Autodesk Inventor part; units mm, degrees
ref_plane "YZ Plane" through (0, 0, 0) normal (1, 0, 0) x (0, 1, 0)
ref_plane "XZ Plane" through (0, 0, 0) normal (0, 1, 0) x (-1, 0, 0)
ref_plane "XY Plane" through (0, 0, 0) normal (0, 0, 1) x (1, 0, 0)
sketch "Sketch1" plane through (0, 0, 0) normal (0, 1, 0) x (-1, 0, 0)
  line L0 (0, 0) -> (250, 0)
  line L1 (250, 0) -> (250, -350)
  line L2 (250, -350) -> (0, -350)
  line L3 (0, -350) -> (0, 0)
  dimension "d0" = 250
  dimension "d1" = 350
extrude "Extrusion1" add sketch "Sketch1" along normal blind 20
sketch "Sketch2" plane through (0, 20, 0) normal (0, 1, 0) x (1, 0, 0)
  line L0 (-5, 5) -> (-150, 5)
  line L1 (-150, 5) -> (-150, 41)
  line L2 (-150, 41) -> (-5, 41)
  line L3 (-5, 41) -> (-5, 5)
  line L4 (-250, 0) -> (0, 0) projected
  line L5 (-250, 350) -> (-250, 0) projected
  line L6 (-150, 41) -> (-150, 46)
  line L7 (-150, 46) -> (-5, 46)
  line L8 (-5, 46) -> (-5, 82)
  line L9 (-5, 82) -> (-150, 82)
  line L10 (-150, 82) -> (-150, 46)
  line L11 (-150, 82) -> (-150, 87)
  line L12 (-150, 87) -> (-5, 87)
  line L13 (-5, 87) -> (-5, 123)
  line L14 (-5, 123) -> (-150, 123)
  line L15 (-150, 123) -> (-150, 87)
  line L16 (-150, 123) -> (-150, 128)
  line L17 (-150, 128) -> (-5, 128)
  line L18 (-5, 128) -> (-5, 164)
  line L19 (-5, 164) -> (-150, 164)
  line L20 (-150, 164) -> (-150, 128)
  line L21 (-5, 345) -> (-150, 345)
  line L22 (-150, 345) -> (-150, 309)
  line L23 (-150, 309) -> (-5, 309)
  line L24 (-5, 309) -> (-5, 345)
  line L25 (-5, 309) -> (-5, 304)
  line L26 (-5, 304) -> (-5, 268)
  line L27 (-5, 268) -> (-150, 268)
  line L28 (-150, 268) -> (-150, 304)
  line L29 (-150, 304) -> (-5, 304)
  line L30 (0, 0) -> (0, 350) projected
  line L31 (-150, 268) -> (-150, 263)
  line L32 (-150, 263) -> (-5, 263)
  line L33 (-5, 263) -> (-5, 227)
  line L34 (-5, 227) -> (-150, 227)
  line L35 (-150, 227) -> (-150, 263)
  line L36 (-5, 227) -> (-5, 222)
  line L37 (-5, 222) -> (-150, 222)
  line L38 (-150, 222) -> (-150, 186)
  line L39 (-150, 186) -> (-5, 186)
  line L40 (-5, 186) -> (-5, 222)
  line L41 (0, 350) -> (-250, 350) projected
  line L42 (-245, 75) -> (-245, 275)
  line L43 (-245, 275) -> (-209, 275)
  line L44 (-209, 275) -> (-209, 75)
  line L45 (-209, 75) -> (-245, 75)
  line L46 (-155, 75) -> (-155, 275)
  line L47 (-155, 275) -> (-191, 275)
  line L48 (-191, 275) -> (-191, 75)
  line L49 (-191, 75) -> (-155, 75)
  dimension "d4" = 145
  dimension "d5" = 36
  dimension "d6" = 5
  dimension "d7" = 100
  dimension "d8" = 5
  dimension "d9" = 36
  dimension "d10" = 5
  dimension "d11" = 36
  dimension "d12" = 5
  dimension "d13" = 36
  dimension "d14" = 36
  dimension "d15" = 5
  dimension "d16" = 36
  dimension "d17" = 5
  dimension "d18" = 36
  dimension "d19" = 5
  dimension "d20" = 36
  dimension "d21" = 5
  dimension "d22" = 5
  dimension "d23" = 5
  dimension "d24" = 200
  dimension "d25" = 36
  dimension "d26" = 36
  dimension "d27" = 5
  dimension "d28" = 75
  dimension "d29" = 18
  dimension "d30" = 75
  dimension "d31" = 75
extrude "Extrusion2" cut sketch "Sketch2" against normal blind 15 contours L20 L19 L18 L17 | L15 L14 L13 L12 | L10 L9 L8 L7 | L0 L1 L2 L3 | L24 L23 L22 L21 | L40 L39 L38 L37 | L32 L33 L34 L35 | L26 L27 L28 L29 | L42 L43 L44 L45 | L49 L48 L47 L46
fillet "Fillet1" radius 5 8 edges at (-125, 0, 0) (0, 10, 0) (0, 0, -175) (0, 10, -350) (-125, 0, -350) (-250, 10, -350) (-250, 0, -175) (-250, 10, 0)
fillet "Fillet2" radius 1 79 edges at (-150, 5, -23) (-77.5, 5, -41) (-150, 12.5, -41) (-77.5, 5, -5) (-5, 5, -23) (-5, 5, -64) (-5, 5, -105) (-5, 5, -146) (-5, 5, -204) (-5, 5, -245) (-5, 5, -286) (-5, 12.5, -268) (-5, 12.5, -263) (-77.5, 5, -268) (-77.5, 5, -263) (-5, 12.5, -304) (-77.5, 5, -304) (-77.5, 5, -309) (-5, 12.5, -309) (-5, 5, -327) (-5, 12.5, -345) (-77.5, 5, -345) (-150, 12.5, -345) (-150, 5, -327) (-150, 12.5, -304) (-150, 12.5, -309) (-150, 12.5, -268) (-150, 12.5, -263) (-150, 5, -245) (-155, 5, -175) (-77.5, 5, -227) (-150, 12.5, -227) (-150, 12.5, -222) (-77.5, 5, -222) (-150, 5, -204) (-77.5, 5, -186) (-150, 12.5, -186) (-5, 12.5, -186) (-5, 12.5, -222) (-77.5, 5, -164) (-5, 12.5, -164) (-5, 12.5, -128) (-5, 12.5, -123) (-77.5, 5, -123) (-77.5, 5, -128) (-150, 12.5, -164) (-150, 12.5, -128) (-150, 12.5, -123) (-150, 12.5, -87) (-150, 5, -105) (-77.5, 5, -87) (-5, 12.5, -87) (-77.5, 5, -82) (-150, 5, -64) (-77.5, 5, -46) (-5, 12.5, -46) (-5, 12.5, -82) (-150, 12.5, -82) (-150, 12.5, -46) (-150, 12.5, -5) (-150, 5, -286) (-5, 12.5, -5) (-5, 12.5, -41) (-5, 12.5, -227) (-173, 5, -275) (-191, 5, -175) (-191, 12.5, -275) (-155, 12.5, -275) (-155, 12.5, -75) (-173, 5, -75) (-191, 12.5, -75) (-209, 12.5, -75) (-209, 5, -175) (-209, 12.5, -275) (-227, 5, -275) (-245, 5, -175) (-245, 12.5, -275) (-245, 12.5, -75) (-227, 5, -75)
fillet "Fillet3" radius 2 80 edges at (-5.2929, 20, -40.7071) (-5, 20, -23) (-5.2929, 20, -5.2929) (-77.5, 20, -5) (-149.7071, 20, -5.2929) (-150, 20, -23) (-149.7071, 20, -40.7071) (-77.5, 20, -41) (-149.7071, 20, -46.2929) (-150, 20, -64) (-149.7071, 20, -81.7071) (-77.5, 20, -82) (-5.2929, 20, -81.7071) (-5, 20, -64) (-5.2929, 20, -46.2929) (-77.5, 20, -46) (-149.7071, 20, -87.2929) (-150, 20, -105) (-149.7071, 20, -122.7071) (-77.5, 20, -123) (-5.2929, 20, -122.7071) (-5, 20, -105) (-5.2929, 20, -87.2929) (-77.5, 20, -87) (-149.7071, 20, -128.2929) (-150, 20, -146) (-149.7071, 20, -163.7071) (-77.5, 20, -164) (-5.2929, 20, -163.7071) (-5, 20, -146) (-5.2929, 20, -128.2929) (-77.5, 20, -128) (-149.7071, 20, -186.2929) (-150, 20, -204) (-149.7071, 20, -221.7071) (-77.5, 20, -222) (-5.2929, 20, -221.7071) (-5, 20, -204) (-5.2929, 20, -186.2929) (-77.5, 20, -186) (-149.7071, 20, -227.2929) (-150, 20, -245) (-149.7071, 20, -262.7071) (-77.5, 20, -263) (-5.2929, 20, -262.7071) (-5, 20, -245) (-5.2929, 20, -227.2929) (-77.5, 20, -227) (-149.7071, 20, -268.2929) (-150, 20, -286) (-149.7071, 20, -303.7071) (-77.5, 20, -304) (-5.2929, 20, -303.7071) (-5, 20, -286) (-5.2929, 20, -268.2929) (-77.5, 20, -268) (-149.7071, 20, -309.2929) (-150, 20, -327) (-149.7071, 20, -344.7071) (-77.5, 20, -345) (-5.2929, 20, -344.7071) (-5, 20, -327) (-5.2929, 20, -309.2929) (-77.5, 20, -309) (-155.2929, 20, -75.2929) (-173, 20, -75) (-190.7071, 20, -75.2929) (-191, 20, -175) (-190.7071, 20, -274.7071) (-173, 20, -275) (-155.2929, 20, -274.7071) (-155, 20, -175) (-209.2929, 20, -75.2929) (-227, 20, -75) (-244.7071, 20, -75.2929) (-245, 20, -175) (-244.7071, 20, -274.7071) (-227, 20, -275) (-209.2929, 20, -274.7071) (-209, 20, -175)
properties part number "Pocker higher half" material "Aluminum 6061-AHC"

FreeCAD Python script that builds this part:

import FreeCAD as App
import Part
import Sketcher
from FreeCAD import Vector


def edges_at(feature, points):
    """Names of the edges that pass closest to the given points."""
    edges = feature.Shape.Edges
    near = lambda p: min(range(len(edges)), key=lambda i: edges[i].distToShape(Part.Vertex(*p))[0])
    return sorted({f"Edge{near(p) + 1}" for p in points})


def add_polygon(sketch, points):
    """Adds a closed chain of lines whose ends are joined by coincident constraints."""
    first, n = sketch.GeometryCount, len(points)
    for a, b in zip(points, points[1:] + points[:1]):
        sketch.addGeometry(Part.LineSegment(App.Vector(*a, 0), App.Vector(*b, 0)), False)
    for i in range(n):
        sketch.addConstraint(Sketcher.Constraint("Coincident", first + i, 2, first + (i + 1) % n, 1))

doc = App.newDocument("Part")
body = doc.addObject("PartDesign::Body", "Body")

sketch1 = body.newObject("Sketcher::SketchObject", "Sketch")
sketch1.AttachmentSupport = (doc.getObject("XZ_Plane"), [""])
sketch1.MapMode = "FlatFace"
add_polygon(sketch1, [(-250, 0), (0, 0), (0, -350), (-250, -350)])
sketch1.addConstraint([
    Sketcher.Constraint("Horizontal", 0),
    Sketcher.Constraint("Vertical", 1),
    Sketcher.Constraint("Horizontal", 2),
    Sketcher.Constraint("Vertical", 3),
    Sketcher.Constraint("Coincident", 0, 2, -1, 1),
    Sketcher.Constraint("DistanceX", 0, 1, 0, 2, 250.0),
    Sketcher.Constraint("DistanceY", 1, 2, 1, 1, 350.0),
])
pad1 = body.newObject("PartDesign::Pad", "Pad")
pad1.Profile = sketch1
pad1.Length = 20
pad1.Reversed = True

sketch2 = body.newObject("Sketcher::SketchObject", "Sketch001")
sketch2.AttachmentSupport = (doc.getObject("XZ_Plane"), [""])
sketch2.MapMode = "FlatFace"
sketch2.AttachmentOffset = App.Placement(Vector(0, 0, -20), App.Rotation())
add_polygon(sketch2, [(-150, -164), (-150, -128), (-5, -128), (-5, -164)])
add_polygon(sketch2, [(-150, -123), (-150, -87), (-5, -87), (-5, -123)])
add_polygon(sketch2, [(-150, -82), (-150, -46), (-5, -46), (-5, -82)])
add_polygon(sketch2, [(-150, -5), (-5, -5), (-5, -41), (-150, -41)])
add_polygon(sketch2, [(-5, -309), (-5, -345), (-150, -345), (-150, -309)])
add_polygon(sketch2, [(-5, -186), (-5, -222), (-150, -222), (-150, -186)])
add_polygon(sketch2, [(-5, -263), (-150, -263), (-150, -227), (-5, -227)])
add_polygon(sketch2, [(-5, -268), (-5, -304), (-150, -304), (-150, -268)])
add_polygon(sketch2, [(-245, -275), (-245, -75), (-209, -75), (-209, -275)])
add_polygon(sketch2, [(-191, -75), (-155, -75), (-155, -275), (-191, -275)])
sketch2.addConstraint([
    Sketcher.Constraint("Vertical", 0),
    Sketcher.Constraint("Horizontal", 1),
    Sketcher.Constraint("Vertical", 2),
    Sketcher.Constraint("Horizontal", 3),
    Sketcher.Constraint("Vertical", 4),
    Sketcher.Constraint("Horizontal", 5),
    Sketcher.Constraint("Vertical", 6),
    Sketcher.Constraint("Horizontal", 7),
    Sketcher.Constraint("Vertical", 8),
    Sketcher.Constraint("Horizontal", 9),
    Sketcher.Constraint("Vertical", 10),
    Sketcher.Constraint("Horizontal", 11),
    Sketcher.Constraint("Horizontal", 12),
    Sketcher.Constraint("Vertical", 13),
    Sketcher.Constraint("Horizontal", 14),
    Sketcher.Constraint("Vertical", 15),
    Sketcher.Constraint("Vertical", 16),
    Sketcher.Constraint("Horizontal", 17),
    Sketcher.Constraint("Vertical", 18),
    Sketcher.Constraint("Horizontal", 19),
    Sketcher.Constraint("Vertical", 20),
    Sketcher.Constraint("Horizontal", 21),
    Sketcher.Constraint("Vertical", 22),
    Sketcher.Constraint("Horizontal", 23),
    Sketcher.Constraint("Horizontal", 24),
    Sketcher.Constraint("Vertical", 25),
    Sketcher.Constraint("Horizontal", 26),
    Sketcher.Constraint("Vertical", 27),
    Sketcher.Constraint("Vertical", 28),
    Sketcher.Constraint("Horizontal", 29),
    Sketcher.Constraint("Vertical", 30),
    Sketcher.Constraint("Horizontal", 31),
    Sketcher.Constraint("Vertical", 32),
    Sketcher.Constraint("Horizontal", 33),
    Sketcher.Constraint("Vertical", 34),
    Sketcher.Constraint("Horizontal", 35),
    Sketcher.Constraint("Horizontal", 36),
    Sketcher.Constraint("Vertical", 37),
    Sketcher.Constraint("Horizontal", 38),
    Sketcher.Constraint("Vertical", 39),
    Sketcher.Constraint("Horizontal", 33, 2, 36, 2),
    Sketcher.Constraint("Horizontal", 35, 2, 37, 2),
    Sketcher.Constraint("Vertical", 3, 2, 4, 2),
    Sketcher.Constraint("Vertical", 2, 2, 5, 2),
    Sketcher.Constraint("Vertical", 7, 2, 8, 2),
    Sketcher.Constraint("Vertical", 6, 2, 9, 2),
    Sketcher.Constraint("Vertical", 10, 2, 12, 2),
    Sketcher.Constraint("Vertical", 11, 2, 14, 2),
    Sketcher.Constraint("Vertical", 13, 2, 16, 2),
    Sketcher.Constraint("Vertical", 15, 2, 17, 2),
    Sketcher.Constraint("Vertical", 19, 2, 20, 2),
    Sketcher.Constraint("Vertical", 18, 2, 21, 2),
    Sketcher.Constraint("Vertical", 22, 2, 24, 2),
    Sketcher.Constraint("Vertical", 23, 2, 26, 2),
    Sketcher.Constraint("Vertical", 27, 2, 28, 2),
    Sketcher.Constraint("Vertical", 25, 2, 29, 2),
    Sketcher.Constraint("Equal", 35, 36),
    Sketcher.Constraint("Equal", 38, 0),
    Sketcher.Constraint("Equal", 2, 4),
    Sketcher.Constraint("Equal", 6, 8),
    Sketcher.Constraint("Equal", 10, 13),
    Sketcher.Constraint("Equal", 15, 16),
    Sketcher.Constraint("Equal", 18, 20),
    Sketcher.Constraint("Equal", 22, 25),
    Sketcher.Constraint("Equal", 27, 28),
    Sketcher.Constraint("DistanceX", 1, 1, 1, 2, 145.0),
    Sketcher.Constraint("DistanceX", 33, 1, 33, 2, 36.0),
    Sketcher.Constraint("DistanceY", 32, 1, 32, 2, 200.0),
    Sketcher.Constraint("DistanceX", 1, 2, -1, 1, 5.0),
    Sketcher.Constraint("DistanceY", 12, 2, -1, 1, 5.0),
    Sketcher.Constraint("DistanceY", 32, 2, -1, 1, 75.0),
    Sketcher.Constraint("DistanceY", 1, 2, 6, 2, 5.0),
    Sketcher.Constraint("DistanceY", 5, 2, 10, 2, 5.0),
    Sketcher.Constraint("DistanceY", 9, 2, 13, 2, 5.0),
    Sketcher.Constraint("DistanceY", 18, 2, 3, 2, 145.0),
    Sketcher.Constraint("DistanceY", 25, 2, 21, 2, 5.0),
    Sketcher.Constraint("DistanceY", 19, 2, 28, 2, 5.0),
    Sketcher.Constraint("DistanceY", 30, 2, 24, 2, 5.0),
    Sketcher.Constraint("DistanceX", 36, 2, 11, 2, 5.0),
    Sketcher.Constraint("DistanceX", 34, 2, 38, 2, 18.0),
])
pocket1 = body.newObject("PartDesign::Pocket", "Pocket")
pocket1.Profile = sketch2
pocket1.Length = 15
pocket1.Reversed = True
doc.recompute()

fillet = body.newObject("PartDesign::Fillet", "Fillet")
fillet.Base = (pocket1, edges_at(pocket1, [
    (-125, 0, 0),
    (0, 10, 0),
    (0, 0, -175),
    (0, 10, -350),
    (-125, 0, -350),
    (-250, 10, -350),
    (-250, 0, -175),
    (-250, 10, 0),
]))
fillet.Radius = 5
doc.recompute()

fillet2 = body.newObject("PartDesign::Fillet", "Fillet001")
fillet2.Base = (fillet, edges_at(fillet, [
    (-150, 5, -23),
    (-77.5, 5, -41),
    (-150, 12.5, -41),
    (-77.5, 5, -5),
    (-5, 5, -23),
    (-5, 5, -64),
    (-5, 5, -105),
    (-5, 5, -146),
    (-5, 5, -204),
    (-5, 5, -245),
    (-5, 5, -286),
    (-5, 12.5, -268),
    (-5, 12.5, -263),
    (-77.5, 5, -268),
    (-77.5, 5, -263),
    (-5, 12.5, -304),
    (-77.5, 5, -304),
    (-77.5, 5, -309),
    (-5, 12.5, -309),
    (-5, 5, -327),
    (-5, 12.5, -345),
    (-77.5, 5, -345),
    (-150, 12.5, -345),
    (-150, 5, -327),
    (-150, 12.5, -304),
    (-150, 12.5, -309),
    (-150, 12.5, -268),
    (-150, 12.5, -263),
    (-150, 5, -245),
    (-155, 5, -175),
    (-77.5, 5, -227),
    (-150, 12.5, -227),
    (-150, 12.5, -222),
    (-77.5, 5, -222),
    (-150, 5, -204),
    (-77.5, 5, -186),
    (-150, 12.5, -186),
    (-5, 12.5, -186),
    (-5, 12.5, -222),
    (-77.5, 5, -164),
    (-5, 12.5, -164),
    (-5, 12.5, -128),
    (-5, 12.5, -123),
    (-77.5, 5, -123),
    (-77.5, 5, -128),
    (-150, 12.5, -164),
    (-150, 12.5, -128),
    (-150, 12.5, -123),
    (-150, 12.5, -87),
    (-150, 5, -105),
    (-77.5, 5, -87),
    (-5, 12.5, -87),
    (-77.5, 5, -82),
    (-150, 5, -64),
    (-77.5, 5, -46),
    (-5, 12.5, -46),
    (-5, 12.5, -82),
    (-150, 12.5, -82),
    (-150, 12.5, -46),
    (-150, 12.5, -5),
    (-150, 5, -286),
    (-5, 12.5, -5),
    (-5, 12.5, -41),
    (-5, 12.5, -227),
    (-173, 5, -275),
    (-191, 5, -175),
    (-191, 12.5, -275),
    (-155, 12.5, -275),
    (-155, 12.5, -75),
    (-173, 5, -75),
    (-191, 12.5, -75),
    (-209, 12.5, -75),
    (-209, 5, -175),
    (-209, 12.5, -275),
    (-227, 5, -275),
    (-245, 5, -175),
    (-245, 12.5, -275),
    (-245, 12.5, -75),
    (-227, 5, -75),
]))
fillet2.Radius = 1
doc.recompute()

fillet3 = body.newObject("PartDesign::Fillet", "Fillet002")
fillet3.Base = (fillet2, edges_at(fillet2, [
    (-5.293, 20, -40.707),
    (-5, 20, -23),
    (-5.293, 20, -5.293),
    (-77.5, 20, -5),
    (-149.707, 20, -5.293),
    (-150, 20, -23),
    (-149.707, 20, -40.707),
    (-77.5, 20, -41),
    (-149.707, 20, -46.293),
    (-150, 20, -64),
    (-149.707, 20, -81.707),
    (-77.5, 20, -82),
    (-5.293, 20, -81.707),
    (-5, 20, -64),
    (-5.293, 20, -46.293),
    (-77.5, 20, -46),
    (-149.707, 20, -87.293),
    (-150, 20, -105),
    (-149.707, 20, -122.707),
    (-77.5, 20, -123),
    (-5.293, 20, -122.707),
    (-5, 20, -105),
    (-5.293, 20, -87.293),
    (-77.5, 20, -87),
    (-149.707, 20, -128.293),
    (-150, 20, -146),
    (-149.707, 20, -163.707),
    (-77.5, 20, -164),
    (-5.293, 20, -163.707),
    (-5, 20, -146),
    (-5.293, 20, -128.293),
    (-77.5, 20, -128),
    (-149.707, 20, -186.293),
    (-150, 20, -204),
    (-149.707, 20, -221.707),
    (-77.5, 20, -222),
    (-5.293, 20, -221.707),
    (-5, 20, -204),
    (-5.293, 20, -186.293),
    (-77.5, 20, -186),
    (-149.707, 20, -227.293),
    (-150, 20, -245),
    (-149.707, 20, -262.707),
    (-77.5, 20, -263),
    (-5.293, 20, -262.707),
    (-5, 20, -245),
    (-5.293, 20, -227.293),
    (-77.5, 20, -227),
    (-149.707, 20, -268.293),
    (-150, 20, -286),
    (-149.707, 20, -303.707),
    (-77.5, 20, -304),
    (-5.293, 20, -303.707),
    (-5, 20, -286),
    (-5.293, 20, -268.293),
    (-77.5, 20, -268),
    (-149.707, 20, -309.293),
    (-150, 20, -327),
    (-149.707, 20, -344.707),
    (-77.5, 20, -345),
    (-5.293, 20, -344.707),
    (-5, 20, -327),
    (-5.293, 20, -309.293),
    (-77.5, 20, -309),
    (-155.293, 20, -75.293),
    (-173, 20, -75),
    (-190.707, 20, -75.293),
    (-191, 20, -175),
    (-190.707, 20, -274.707),
    (-173, 20, -275),
    (-155.293, 20, -274.707),
    (-155, 20, -175),
    (-209.293, 20, -75.293),
    (-227, 20, -75),
    (-244.707, 20, -75.293),
    (-245, 20, -175),
    (-244.707, 20, -274.707),
    (-227, 20, -275),
    (-209.293, 20, -274.707),
    (-209, 20, -175),
]))
fillet3.Radius = 2

doc.recompute()
